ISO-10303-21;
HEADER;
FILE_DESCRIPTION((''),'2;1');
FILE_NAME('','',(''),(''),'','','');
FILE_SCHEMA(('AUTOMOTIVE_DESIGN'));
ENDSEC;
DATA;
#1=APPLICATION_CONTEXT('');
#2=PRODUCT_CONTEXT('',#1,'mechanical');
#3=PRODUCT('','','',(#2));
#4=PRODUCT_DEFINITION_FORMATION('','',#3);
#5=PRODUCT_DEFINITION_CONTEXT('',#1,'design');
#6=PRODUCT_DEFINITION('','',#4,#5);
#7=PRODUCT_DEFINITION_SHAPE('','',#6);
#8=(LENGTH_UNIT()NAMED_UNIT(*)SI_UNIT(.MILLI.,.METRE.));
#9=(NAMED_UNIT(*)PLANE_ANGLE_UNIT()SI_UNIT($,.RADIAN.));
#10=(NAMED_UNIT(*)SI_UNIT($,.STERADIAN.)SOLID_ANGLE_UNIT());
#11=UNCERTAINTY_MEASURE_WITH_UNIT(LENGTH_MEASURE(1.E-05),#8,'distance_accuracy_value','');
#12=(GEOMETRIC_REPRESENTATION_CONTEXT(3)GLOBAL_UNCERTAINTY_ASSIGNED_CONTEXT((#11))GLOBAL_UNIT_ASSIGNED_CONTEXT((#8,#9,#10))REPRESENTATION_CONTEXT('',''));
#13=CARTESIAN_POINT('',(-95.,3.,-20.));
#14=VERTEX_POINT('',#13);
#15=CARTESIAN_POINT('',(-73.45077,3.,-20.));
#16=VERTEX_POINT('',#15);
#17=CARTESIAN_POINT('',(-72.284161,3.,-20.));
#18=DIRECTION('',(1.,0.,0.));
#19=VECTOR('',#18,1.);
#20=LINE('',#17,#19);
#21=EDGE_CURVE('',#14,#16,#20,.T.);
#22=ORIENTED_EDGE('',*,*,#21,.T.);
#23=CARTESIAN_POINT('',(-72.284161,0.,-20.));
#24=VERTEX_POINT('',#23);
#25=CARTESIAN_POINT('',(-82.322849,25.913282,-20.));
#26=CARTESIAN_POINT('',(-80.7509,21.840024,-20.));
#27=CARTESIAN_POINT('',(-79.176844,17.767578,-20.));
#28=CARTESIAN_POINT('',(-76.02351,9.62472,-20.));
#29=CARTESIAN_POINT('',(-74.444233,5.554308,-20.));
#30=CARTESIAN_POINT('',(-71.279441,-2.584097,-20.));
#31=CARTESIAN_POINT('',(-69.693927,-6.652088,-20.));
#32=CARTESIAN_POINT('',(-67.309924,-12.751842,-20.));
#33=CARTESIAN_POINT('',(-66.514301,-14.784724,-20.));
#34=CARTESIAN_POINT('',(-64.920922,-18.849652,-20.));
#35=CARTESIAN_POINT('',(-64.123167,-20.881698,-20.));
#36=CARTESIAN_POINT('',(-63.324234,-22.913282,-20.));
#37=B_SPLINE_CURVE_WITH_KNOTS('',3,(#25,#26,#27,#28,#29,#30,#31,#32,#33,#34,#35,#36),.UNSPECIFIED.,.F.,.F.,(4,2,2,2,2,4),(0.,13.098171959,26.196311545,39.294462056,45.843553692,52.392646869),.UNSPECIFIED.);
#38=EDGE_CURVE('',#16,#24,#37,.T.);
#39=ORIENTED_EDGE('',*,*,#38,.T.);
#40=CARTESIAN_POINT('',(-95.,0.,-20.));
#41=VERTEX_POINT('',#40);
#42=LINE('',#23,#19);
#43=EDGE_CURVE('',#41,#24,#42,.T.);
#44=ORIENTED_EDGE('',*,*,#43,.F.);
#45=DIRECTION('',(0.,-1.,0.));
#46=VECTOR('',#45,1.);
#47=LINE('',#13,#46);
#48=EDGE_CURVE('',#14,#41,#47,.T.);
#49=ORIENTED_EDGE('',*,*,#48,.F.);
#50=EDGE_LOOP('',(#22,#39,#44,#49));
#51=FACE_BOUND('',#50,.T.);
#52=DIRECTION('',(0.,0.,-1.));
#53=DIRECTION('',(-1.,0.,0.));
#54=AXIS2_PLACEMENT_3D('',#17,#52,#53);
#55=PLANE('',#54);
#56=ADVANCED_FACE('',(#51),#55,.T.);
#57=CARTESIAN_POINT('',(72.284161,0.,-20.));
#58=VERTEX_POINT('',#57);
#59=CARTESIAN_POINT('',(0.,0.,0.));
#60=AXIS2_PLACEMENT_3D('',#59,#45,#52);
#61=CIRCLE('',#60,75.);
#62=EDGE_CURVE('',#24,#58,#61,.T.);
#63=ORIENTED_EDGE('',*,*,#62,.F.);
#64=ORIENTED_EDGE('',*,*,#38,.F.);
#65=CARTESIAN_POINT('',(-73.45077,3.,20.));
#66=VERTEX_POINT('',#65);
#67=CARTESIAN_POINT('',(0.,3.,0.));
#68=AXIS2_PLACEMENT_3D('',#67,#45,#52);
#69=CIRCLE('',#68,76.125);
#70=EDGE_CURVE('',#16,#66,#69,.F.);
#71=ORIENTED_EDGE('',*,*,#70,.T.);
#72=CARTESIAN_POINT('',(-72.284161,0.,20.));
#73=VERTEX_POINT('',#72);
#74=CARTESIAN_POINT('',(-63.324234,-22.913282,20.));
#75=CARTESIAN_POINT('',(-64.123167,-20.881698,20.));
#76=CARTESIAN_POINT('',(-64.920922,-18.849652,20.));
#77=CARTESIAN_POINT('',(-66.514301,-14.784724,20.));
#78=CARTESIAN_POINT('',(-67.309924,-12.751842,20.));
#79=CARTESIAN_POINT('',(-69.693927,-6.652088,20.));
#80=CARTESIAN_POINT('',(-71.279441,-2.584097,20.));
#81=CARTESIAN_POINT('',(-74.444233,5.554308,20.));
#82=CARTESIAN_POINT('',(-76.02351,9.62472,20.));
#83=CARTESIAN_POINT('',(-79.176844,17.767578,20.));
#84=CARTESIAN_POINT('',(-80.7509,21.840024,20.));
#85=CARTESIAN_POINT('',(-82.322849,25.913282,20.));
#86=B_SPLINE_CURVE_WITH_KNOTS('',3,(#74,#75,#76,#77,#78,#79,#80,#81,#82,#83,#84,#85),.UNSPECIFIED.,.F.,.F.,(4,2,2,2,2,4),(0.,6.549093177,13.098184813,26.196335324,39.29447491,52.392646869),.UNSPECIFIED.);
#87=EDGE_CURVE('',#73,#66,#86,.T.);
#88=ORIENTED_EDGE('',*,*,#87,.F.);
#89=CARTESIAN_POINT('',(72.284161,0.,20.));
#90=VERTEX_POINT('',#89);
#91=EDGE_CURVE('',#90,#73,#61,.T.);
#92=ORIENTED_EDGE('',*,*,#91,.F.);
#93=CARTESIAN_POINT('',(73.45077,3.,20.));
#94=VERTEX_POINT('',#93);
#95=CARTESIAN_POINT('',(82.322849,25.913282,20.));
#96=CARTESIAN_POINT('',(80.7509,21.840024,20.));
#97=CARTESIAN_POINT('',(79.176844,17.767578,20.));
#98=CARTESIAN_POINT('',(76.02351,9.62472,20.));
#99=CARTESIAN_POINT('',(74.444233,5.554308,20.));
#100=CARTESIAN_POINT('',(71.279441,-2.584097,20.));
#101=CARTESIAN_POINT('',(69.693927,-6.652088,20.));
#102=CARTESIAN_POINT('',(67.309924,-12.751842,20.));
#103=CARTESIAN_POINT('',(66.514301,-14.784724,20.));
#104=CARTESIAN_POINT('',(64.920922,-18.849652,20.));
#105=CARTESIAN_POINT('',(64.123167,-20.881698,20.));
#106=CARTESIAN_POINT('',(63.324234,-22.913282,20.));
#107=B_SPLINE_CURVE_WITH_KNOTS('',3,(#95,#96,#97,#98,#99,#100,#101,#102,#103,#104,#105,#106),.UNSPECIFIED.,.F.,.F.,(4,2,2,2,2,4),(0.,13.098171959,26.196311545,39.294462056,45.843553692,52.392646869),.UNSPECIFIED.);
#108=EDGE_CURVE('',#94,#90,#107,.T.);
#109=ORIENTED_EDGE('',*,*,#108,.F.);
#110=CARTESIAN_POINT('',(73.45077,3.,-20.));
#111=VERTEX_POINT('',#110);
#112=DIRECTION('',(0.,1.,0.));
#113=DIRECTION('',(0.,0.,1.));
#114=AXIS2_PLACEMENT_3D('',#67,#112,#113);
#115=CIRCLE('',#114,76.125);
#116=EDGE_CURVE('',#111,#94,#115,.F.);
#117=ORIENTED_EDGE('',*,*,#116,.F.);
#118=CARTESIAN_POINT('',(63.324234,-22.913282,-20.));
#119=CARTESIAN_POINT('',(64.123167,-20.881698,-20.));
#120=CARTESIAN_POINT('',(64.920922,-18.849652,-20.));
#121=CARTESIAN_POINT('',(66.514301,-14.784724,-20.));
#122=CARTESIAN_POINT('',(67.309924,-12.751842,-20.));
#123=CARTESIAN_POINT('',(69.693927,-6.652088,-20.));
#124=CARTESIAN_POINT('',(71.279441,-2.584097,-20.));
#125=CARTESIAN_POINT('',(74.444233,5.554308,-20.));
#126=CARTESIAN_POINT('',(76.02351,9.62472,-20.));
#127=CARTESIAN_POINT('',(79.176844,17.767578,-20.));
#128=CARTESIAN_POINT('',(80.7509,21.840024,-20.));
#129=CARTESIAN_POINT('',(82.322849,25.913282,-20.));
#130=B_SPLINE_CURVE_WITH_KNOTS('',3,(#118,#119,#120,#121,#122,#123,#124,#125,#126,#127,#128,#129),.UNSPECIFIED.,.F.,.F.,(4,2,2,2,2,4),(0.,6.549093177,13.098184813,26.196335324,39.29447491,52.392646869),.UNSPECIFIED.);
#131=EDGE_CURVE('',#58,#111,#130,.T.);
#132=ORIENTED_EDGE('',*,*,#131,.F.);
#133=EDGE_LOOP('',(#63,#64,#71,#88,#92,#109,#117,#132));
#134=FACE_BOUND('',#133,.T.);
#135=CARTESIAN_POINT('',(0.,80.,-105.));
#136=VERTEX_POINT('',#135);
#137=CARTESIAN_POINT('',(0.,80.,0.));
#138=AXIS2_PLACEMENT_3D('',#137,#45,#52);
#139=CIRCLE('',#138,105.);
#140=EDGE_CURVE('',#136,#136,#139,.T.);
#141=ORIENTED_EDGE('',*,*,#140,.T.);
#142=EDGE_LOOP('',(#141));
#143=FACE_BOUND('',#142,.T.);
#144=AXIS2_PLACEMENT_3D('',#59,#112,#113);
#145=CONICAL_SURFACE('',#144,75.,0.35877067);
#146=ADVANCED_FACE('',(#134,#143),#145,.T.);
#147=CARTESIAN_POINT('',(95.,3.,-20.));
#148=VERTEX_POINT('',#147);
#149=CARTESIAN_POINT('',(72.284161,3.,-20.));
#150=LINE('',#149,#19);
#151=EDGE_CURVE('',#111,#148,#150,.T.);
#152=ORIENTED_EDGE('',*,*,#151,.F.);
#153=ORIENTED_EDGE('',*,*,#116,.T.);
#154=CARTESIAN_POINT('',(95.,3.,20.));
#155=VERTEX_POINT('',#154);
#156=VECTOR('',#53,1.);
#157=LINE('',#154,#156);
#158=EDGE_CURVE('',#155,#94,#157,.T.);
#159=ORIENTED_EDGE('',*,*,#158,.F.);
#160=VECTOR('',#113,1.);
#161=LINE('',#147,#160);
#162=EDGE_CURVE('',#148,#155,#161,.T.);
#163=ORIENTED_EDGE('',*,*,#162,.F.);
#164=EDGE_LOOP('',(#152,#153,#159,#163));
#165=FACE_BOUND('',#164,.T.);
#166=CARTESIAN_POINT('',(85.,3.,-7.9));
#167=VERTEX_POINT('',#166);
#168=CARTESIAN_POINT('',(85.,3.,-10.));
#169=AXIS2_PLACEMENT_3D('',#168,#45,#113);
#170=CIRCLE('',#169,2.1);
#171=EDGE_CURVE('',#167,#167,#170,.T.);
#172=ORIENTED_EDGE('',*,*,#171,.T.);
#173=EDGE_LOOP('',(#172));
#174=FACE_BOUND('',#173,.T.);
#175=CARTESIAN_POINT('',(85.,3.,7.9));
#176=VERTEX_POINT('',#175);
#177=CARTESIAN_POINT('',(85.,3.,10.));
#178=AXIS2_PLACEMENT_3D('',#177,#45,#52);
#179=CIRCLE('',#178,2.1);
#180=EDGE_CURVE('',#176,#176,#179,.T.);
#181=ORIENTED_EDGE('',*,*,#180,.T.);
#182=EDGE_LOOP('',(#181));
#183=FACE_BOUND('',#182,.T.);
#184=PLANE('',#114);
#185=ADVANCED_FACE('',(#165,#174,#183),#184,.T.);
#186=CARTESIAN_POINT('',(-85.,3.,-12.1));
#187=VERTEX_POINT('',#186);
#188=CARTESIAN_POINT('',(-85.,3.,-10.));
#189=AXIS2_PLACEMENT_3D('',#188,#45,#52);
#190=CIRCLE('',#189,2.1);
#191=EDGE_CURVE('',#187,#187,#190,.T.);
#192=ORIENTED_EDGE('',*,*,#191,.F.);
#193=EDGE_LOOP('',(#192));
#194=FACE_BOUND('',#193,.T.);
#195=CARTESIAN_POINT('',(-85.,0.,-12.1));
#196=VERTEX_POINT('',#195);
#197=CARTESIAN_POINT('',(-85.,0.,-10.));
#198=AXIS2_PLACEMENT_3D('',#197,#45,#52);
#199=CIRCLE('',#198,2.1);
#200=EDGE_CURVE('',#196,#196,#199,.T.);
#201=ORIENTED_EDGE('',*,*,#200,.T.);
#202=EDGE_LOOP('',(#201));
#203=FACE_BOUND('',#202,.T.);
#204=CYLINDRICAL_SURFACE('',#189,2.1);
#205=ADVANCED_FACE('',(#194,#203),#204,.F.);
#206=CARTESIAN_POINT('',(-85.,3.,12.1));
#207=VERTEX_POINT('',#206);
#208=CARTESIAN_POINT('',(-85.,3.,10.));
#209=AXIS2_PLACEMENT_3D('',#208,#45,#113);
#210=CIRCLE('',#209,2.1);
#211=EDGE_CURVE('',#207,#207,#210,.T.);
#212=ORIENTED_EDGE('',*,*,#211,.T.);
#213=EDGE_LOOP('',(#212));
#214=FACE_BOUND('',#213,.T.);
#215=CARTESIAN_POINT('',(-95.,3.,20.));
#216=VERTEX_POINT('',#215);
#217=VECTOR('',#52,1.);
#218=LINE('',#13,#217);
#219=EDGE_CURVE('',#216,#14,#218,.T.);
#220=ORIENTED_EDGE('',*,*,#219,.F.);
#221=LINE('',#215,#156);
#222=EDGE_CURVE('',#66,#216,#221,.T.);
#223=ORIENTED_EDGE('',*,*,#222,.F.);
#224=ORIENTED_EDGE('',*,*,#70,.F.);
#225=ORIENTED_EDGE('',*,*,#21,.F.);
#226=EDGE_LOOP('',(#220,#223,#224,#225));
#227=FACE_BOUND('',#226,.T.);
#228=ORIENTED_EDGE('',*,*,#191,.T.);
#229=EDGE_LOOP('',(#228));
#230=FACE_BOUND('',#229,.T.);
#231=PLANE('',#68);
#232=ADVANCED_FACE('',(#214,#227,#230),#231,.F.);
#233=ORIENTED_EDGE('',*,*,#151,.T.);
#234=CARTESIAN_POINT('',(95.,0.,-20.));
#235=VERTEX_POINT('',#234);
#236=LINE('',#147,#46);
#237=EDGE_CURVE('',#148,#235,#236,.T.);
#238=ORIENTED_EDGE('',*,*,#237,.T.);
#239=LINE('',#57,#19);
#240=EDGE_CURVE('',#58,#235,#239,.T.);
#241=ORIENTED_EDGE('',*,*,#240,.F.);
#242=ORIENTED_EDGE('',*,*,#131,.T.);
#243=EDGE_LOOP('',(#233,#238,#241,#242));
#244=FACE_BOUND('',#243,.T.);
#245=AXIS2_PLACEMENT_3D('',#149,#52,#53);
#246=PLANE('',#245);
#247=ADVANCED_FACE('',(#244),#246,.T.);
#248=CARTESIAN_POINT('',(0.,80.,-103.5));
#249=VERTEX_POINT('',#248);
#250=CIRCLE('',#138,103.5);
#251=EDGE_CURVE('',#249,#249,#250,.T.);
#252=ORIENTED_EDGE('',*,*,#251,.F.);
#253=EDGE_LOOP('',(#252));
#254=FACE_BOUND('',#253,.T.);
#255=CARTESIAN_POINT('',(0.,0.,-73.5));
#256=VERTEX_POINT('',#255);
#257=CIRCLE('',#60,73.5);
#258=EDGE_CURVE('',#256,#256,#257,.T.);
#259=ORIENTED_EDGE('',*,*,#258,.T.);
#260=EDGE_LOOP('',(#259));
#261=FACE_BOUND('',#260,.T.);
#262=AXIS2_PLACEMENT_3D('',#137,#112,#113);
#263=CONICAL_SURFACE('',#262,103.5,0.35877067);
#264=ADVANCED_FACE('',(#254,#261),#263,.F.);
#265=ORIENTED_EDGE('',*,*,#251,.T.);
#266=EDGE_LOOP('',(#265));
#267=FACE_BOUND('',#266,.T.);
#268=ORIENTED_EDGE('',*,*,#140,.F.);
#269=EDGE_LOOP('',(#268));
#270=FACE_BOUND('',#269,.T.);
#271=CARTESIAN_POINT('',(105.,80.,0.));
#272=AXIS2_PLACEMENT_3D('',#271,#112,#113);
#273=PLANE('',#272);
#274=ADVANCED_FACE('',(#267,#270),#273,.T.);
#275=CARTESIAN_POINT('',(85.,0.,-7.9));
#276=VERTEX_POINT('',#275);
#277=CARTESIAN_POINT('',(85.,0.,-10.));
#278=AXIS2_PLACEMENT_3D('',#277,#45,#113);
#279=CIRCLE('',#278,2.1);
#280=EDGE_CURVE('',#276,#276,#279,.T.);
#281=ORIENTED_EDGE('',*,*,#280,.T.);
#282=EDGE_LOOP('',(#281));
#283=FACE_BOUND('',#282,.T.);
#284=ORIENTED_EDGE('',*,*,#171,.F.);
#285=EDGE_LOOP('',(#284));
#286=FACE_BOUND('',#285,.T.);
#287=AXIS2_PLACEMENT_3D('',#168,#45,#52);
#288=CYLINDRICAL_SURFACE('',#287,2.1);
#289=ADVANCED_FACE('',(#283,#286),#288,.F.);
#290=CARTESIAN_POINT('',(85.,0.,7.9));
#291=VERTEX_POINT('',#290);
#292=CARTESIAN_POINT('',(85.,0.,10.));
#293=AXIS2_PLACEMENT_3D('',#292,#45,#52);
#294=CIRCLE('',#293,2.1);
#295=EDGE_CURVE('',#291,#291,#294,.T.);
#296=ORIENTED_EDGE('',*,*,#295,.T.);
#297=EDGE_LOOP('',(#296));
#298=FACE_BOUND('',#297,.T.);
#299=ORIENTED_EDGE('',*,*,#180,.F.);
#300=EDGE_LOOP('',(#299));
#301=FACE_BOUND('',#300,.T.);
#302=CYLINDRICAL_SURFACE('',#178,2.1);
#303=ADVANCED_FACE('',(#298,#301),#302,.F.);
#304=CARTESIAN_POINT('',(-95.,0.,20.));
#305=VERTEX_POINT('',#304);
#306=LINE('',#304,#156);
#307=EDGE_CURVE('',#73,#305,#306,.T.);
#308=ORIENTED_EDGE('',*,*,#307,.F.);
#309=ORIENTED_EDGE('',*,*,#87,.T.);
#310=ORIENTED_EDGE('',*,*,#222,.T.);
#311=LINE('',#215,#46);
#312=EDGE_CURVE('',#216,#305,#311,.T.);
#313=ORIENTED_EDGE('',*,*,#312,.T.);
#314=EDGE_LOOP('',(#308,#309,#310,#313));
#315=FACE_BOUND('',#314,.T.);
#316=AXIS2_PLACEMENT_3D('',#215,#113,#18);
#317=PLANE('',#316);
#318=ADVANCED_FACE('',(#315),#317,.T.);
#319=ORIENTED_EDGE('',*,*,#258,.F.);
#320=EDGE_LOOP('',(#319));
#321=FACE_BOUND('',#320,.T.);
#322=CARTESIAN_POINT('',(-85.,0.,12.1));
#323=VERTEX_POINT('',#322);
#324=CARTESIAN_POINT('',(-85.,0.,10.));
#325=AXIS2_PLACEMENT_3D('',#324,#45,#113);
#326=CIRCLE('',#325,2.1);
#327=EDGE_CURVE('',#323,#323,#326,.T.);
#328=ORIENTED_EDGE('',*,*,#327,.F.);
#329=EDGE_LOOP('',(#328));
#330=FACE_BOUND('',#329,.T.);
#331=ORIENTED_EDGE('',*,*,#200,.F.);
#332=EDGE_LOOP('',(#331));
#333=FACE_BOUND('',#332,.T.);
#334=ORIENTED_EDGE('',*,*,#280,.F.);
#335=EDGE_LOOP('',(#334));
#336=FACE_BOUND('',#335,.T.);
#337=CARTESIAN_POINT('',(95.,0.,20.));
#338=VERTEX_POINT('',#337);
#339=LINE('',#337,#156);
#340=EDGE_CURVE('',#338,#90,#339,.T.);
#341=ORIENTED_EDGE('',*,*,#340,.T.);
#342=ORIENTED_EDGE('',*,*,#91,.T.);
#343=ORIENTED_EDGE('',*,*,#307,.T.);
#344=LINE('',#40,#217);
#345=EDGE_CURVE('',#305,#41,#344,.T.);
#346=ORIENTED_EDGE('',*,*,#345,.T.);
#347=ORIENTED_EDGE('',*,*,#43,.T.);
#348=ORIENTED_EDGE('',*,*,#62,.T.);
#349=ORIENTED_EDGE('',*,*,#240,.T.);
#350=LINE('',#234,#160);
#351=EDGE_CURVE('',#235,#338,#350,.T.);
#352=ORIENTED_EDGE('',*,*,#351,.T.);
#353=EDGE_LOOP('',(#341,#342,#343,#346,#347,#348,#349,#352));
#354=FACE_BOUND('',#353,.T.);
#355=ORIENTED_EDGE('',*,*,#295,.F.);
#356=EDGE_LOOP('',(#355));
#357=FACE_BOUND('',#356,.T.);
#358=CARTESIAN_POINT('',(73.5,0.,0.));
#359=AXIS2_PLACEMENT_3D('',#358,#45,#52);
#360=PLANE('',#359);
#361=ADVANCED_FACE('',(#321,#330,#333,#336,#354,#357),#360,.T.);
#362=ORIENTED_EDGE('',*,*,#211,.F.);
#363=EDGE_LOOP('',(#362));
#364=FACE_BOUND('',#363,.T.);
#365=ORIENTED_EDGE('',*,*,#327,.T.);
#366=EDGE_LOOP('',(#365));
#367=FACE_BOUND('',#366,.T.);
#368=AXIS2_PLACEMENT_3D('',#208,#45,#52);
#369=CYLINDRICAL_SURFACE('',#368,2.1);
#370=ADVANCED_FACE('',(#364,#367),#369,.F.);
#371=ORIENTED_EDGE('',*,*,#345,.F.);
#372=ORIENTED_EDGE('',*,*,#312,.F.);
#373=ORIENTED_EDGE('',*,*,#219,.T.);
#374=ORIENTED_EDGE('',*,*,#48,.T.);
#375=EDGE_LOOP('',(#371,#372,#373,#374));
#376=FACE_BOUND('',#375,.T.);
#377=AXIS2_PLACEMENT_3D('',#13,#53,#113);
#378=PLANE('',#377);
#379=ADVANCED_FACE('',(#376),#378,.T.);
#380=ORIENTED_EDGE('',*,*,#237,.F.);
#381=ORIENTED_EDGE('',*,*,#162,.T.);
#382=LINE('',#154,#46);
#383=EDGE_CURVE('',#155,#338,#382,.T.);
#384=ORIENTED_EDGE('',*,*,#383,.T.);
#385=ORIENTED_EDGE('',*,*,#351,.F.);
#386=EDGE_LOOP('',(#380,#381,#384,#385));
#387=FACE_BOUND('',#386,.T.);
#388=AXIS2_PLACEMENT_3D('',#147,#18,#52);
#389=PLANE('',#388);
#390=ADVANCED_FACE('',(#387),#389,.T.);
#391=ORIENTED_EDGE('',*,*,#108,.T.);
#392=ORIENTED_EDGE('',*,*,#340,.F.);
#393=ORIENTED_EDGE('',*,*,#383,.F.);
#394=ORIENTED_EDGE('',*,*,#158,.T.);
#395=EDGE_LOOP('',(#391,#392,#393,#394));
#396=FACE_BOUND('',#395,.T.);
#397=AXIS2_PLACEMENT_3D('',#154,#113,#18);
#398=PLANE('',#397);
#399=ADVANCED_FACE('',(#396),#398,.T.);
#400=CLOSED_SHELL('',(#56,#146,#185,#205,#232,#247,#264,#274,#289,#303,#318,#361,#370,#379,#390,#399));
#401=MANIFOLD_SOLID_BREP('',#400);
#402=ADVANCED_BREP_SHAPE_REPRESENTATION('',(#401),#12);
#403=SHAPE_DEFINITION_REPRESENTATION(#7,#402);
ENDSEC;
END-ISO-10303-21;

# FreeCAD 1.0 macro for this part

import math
import FreeCAD as App
import Part
import Sketcher
Q = App.Units.Quantity

doc = App.newDocument("Part")
body = doc.addObject("PartDesign::Body", "Body")

# Sketch on XY plane
sketch1 = body.newObject("Sketcher::SketchObject", "Sketch")
sketch1.AttachmentSupport = (doc.getObject("XY_Plane"), [""])
sketch1.MapMode = "FlatFace"
sketch1.addGeometry(Part.LineSegment(App.Vector(73.5, 0, 0), App.Vector(75, 0, 0)), False)
sketch1.addGeometry(Part.LineSegment(App.Vector(75, 0, 0), App.Vector(105, 80, 0)), False)
sketch1.addGeometry(Part.LineSegment(App.Vector(105, 80, 0), App.Vector(103.5, 80, 0)), False)
sketch1.addGeometry(Part.LineSegment(App.Vector(103.5, 80, 0), App.Vector(73.5, 0, 0)), False)
sketch1.addConstraint(Sketcher.Constraint("Coincident", 0, 2, 1, 1))
sketch1.addConstraint(Sketcher.Constraint("Coincident", 1, 2, 2, 1))
sketch1.addConstraint(Sketcher.Constraint("Coincident", 2, 2, 3, 1))
sketch1.addConstraint(Sketcher.Constraint("Coincident", 3, 2, 0, 1))
sketch1.addConstraint(Sketcher.Constraint("Horizontal", 0))
sketch1.addConstraint(Sketcher.Constraint("Horizontal", 2))
sketch1.addConstraint(Sketcher.Constraint("PointOnObject", 0, 2, -1))
sketch1.addConstraint(Sketcher.Constraint("Parallel", 1, 3))
sketch1.addConstraint(Sketcher.Constraint("DistanceX", 0, 1, 0, 2, Q("1.5 mm")))
sketch1.addConstraint(Sketcher.Constraint("DistanceX", -1, 1, 0, 2, Q("75 mm")))
sketch1.addConstraint(Sketcher.Constraint("DistanceX", -1, 1, 1, 2, Q("105 mm")))
sketch1.addConstraint(Sketcher.Constraint("DistanceY", -1, 1, 1, 2, Q("80 mm")))
revolution = body.newObject("PartDesign::Revolution", "Revolution")
revolution.Profile = sketch1
revolution.ReferenceAxis = (sketch1, ["V_Axis"])
revolution.Angle = 360

# Sketch on XZ plane
sketch2 = body.newObject("Sketcher::SketchObject", "Sketch001")
sketch2.AttachmentSupport = (doc.getObject("XZ_Plane"), [""])
sketch2.MapMode = "FlatFace"
sketch2.addGeometry(Part.LineSegment(App.Vector(72, -20, 0), App.Vector(95, -20, 0)), False)
sketch2.addGeometry(Part.LineSegment(App.Vector(95, -20, 0), App.Vector(95, 20, 0)), False)
sketch2.addGeometry(Part.LineSegment(App.Vector(95, 20, 0), App.Vector(72, 20, 0)), False)
sketch2.addGeometry(Part.ArcOfCircle(Part.Circle(App.Vector(0, 0, 0), App.Vector(0, 0, 1), 75), math.radians(-15), math.radians(15)), False)
sketch2.addGeometry(Part.LineSegment(App.Vector(-72, 20, 0), App.Vector(-95, 20, 0)), False)
sketch2.addGeometry(Part.LineSegment(App.Vector(-95, 20, 0), App.Vector(-95, -20, 0)), False)
sketch2.addGeometry(Part.LineSegment(App.Vector(-95, -20, 0), App.Vector(-72, -20, 0)), False)
sketch2.addGeometry(Part.ArcOfCircle(Part.Circle(App.Vector(0, 0, 0), App.Vector(0, 0, 1), 75), math.radians(165), math.radians(195)), False)
sketch2.addConstraint(Sketcher.Constraint("Coincident", 0, 2, 1, 1))
sketch2.addConstraint(Sketcher.Constraint("Coincident", 1, 2, 2, 1))
sketch2.addConstraint(Sketcher.Constraint("Coincident", 2, 2, 3, 2))
sketch2.addConstraint(Sketcher.Constraint("Coincident", 3, 1, 0, 1))
sketch2.addConstraint(Sketcher.Constraint("Coincident", 4, 2, 5, 1))
sketch2.addConstraint(Sketcher.Constraint("Coincident", 5, 2, 6, 1))
sketch2.addConstraint(Sketcher.Constraint("Coincident", 6, 2, 7, 2))
sketch2.addConstraint(Sketcher.Constraint("Coincident", 7, 1, 4, 1))
sketch2.addConstraint(Sketcher.Constraint("Horizontal", 0))
sketch2.addConstraint(Sketcher.Constraint("Vertical", 1))
sketch2.addConstraint(Sketcher.Constraint("Horizontal", 2))
sketch2.addConstraint(Sketcher.Constraint("Horizontal", 4))
sketch2.addConstraint(Sketcher.Constraint("Vertical", 5))
sketch2.addConstraint(Sketcher.Constraint("Horizontal", 6))
sketch2.addConstraint(Sketcher.Constraint("Coincident", 3, 3, -1, 1))
sketch2.addConstraint(Sketcher.Constraint("Coincident", 7, 3, -1, 1))
sketch2.addConstraint(Sketcher.Constraint("Equal", 3, 7))
sketch2.addConstraint(Sketcher.Constraint("Symmetric", 0, 2, 4, 2, -1, 1))
sketch2.addConstraint(Sketcher.Constraint("Horizontal", 2, 2, 4, 2))
sketch2.addConstraint(Sketcher.Constraint("Horizontal", 3, 1, 5, 2))
sketch2.addConstraint(Sketcher.Constraint("Radius", 3, Q("75 mm")))
sketch2.addConstraint(Sketcher.Constraint("DistanceY", 1, 1, 1, 2, Q("40 mm")))
sketch2.addConstraint(Sketcher.Constraint("DistanceX", -1, 1, 0, 2, Q("95 mm")))
pad1 = body.newObject("PartDesign::Pad", "Pad")
pad1.Profile = sketch2
pad1.Length = 3
pad1.Reversed = True

# Sketch on XZ plane
sketch3 = body.newObject("Sketcher::SketchObject", "Sketch002")
sketch3.AttachmentSupport = (doc.getObject("XZ_Plane"), [""])
sketch3.MapMode = "FlatFace"
sketch3.addGeometry(Part.Circle(App.Vector(85, 10, 0), App.Vector(0, 0, 1), 2.1), False)
sketch3.addGeometry(Part.Circle(App.Vector(85, -10, 0), App.Vector(0, 0, 1), 2.1), False)
sketch3.addGeometry(Part.Circle(App.Vector(-85, -10, 0), App.Vector(0, 0, 1), 2.1), False)
sketch3.addGeometry(Part.Circle(App.Vector(-85, 10, 0), App.Vector(0, 0, 1), 2.1), False)
sketch3.addConstraint(Sketcher.Constraint("Equal", 0, 1))
sketch3.addConstraint(Sketcher.Constraint("Equal", 1, 2))
sketch3.addConstraint(Sketcher.Constraint("Equal", 2, 3))
sketch3.addConstraint(Sketcher.Constraint("Symmetric", 0, 3, 2, 3, -1, 1))
sketch3.addConstraint(Sketcher.Constraint("Symmetric", 1, 3, 3, 3, -1, 1))
sketch3.addConstraint(Sketcher.Constraint("Symmetric", 1, 3, 2, 3, -2))
sketch3.addConstraint(Sketcher.Constraint("Diameter", 0, Q("4.2 mm")))
sketch3.addConstraint(Sketcher.Constraint("DistanceX", -1, 1, 0, 3, Q("85 mm")))
sketch3.addConstraint(Sketcher.Constraint("DistanceY", -1, 1, 0, 3, Q("10 mm")))
pocket1 = body.newObject("PartDesign::Pocket", "Pocket")
pocket1.Profile = sketch3
pocket1.Length = 3

doc.recompute()
